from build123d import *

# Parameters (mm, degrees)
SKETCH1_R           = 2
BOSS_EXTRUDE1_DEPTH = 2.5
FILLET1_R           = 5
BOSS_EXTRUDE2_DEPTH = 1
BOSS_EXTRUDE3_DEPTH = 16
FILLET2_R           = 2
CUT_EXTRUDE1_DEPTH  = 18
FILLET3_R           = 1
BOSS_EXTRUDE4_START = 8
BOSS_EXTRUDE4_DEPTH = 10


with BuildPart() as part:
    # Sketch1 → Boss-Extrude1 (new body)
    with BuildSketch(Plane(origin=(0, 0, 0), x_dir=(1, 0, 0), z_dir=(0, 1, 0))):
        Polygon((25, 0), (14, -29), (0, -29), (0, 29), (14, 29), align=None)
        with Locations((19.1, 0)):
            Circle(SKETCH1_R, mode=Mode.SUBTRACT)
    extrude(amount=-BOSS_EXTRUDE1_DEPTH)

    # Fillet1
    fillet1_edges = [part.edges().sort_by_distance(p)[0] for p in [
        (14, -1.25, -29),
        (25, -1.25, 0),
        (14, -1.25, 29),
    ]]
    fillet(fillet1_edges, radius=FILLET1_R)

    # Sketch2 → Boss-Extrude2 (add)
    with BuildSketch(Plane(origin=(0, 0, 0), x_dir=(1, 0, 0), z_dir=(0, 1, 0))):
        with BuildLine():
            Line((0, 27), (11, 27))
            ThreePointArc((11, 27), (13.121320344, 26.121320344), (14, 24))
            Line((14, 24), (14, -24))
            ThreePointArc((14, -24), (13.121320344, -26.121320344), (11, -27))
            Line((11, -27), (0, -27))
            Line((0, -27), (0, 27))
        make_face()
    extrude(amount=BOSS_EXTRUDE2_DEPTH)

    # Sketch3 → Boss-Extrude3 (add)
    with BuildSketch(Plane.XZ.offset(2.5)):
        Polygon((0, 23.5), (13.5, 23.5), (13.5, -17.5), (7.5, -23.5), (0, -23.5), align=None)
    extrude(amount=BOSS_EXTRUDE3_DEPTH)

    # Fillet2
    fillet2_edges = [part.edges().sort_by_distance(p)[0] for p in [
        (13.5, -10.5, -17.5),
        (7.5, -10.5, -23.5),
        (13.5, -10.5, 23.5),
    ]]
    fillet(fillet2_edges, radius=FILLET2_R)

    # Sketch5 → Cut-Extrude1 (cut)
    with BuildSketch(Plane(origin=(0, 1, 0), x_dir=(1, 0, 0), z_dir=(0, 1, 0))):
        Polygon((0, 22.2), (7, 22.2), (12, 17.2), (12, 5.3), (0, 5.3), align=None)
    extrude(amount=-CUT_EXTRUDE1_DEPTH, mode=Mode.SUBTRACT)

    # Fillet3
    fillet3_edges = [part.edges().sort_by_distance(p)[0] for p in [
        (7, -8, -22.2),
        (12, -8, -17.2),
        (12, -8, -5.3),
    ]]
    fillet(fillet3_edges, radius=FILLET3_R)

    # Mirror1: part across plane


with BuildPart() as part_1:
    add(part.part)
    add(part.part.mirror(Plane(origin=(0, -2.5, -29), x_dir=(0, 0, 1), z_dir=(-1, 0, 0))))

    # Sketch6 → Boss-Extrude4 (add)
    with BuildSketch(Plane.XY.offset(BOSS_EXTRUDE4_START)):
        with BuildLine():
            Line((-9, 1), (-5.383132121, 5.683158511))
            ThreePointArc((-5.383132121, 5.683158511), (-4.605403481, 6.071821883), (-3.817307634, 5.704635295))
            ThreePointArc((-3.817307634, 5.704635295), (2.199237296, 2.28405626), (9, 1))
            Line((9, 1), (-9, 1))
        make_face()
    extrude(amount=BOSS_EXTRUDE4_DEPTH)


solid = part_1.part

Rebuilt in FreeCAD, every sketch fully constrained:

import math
import FreeCAD as App
import Part
import Sketcher
Q = App.Units.Quantity


def edges_at(feature, points):
    """Names of the edges that pass closest to the given points."""
    edges = feature.Shape.Edges
    near = lambda p: min(range(len(edges)), key=lambda i: edges[i].distToShape(Part.Vertex(*p))[0])
    return sorted({f"Edge{near(p) + 1}" for p in points})

doc = App.newDocument("Part")
body = doc.addObject("PartDesign::Body", "Body")

# Sketch on XZ plane
sketch1 = doc.addObject("Sketcher::SketchObject", "Sketch")
body.addObject(sketch1)
sketch1.AttachmentSupport = (doc.XZ_Plane, [""])
sketch1.MapMode = "FlatFace"
sketch1.addGeometry(Part.LineSegment(App.Vector(14, 29, 0), App.Vector(25, 0, 0)), False)
sketch1.addGeometry(Part.LineSegment(App.Vector(25, 0, 0), App.Vector(14, -29, 0)), False)
sketch1.addGeometry(Part.LineSegment(App.Vector(14, -29, 0), App.Vector(0, -29, 0)), False)
sketch1.addGeometry(Part.LineSegment(App.Vector(0, -29, 0), App.Vector(0, 29, 0)), False)
sketch1.addGeometry(Part.LineSegment(App.Vector(0, 29, 0), App.Vector(14, 29, 0)), False)
sketch1.addGeometry(Part.Circle(App.Vector(19.1, 0, 0), App.Vector(0, 0, 1), 2), False)
sketch1.addConstraint(Sketcher.Constraint("Coincident", 0, 2, 1, 1))
sketch1.addConstraint(Sketcher.Constraint("Coincident", 1, 2, 2, 1))
sketch1.addConstraint(Sketcher.Constraint("Coincident", 2, 2, 3, 1))
sketch1.addConstraint(Sketcher.Constraint("Coincident", 3, 2, 4, 1))
sketch1.addConstraint(Sketcher.Constraint("Coincident", 4, 2, 0, 1))
sketch1.addConstraint(Sketcher.Constraint("Horizontal", 2))
sketch1.addConstraint(Sketcher.Constraint("Vertical", 3))
sketch1.addConstraint(Sketcher.Constraint("Horizontal", 4))
sketch1.addConstraint(Sketcher.Constraint("Symmetric", 2, 2, 3, 2, -1, 1))
sketch1.addConstraint(Sketcher.Constraint("PointOnObject", 5, 3, -1))
sketch1.addConstraint(Sketcher.Constraint("PointOnObject", 0, 2, -1))
sketch1.addConstraint(Sketcher.Constraint("Vertical", 1, 2, 4, 2))
sketch1.addConstraint(Sketcher.Constraint("Diameter", 5, Q("4 mm")))
sketch1.addConstraint(Sketcher.Constraint("DistanceX", 2, 2, 2, 1, Q("14 mm")))
sketch1.addConstraint(Sketcher.Constraint("DistanceY", 3, 1, 3, 2, Q("58 mm")))
sketch1.addConstraint(Sketcher.Constraint("DistanceX", -1, 1, 0, 2, Q("25 mm")))
sketch1.addConstraint(Sketcher.Constraint("DistanceX", -1, 1, 5, 3, Q("19.1 mm")))
pad1 = doc.addObject("PartDesign::Pad", "Pad")
body.addObject(pad1)
pad1.Profile = sketch1
pad1.Length = 2.5
doc.recompute()

fillet = doc.addObject("PartDesign::Fillet", "Fillet")
body.addObject(fillet)
fillet.Base = (pad1, edges_at(pad1, [(14, -1.25, -29), (25, -1.25, 0), (14, -1.25, 29)]))
fillet.Radius = 5

# Sketch on XZ plane
sketch2 = doc.addObject("Sketcher::SketchObject", "Sketch001")
body.addObject(sketch2)
sketch2.AttachmentSupport = (doc.XZ_Plane, [""])
sketch2.MapMode = "FlatFace"
sketch2.addGeometry(Part.LineSegment(App.Vector(11, -27, 0), App.Vector(0, -27, 0)), False)
sketch2.addGeometry(Part.LineSegment(App.Vector(0, -27, 0), App.Vector(0, 27, 0)), False)
sketch2.addGeometry(Part.LineSegment(App.Vector(0, 27, 0), App.Vector(11, 27, 0)), False)
sketch2.addGeometry(Part.ArcOfCircle(Part.Circle(App.Vector(11, 24, 0), App.Vector(0, 0, 1), 3), math.radians(0), math.radians(90)), False)
sketch2.addGeometry(Part.LineSegment(App.Vector(14, 24, 0), App.Vector(14, -24, 0)), False)
sketch2.addGeometry(Part.ArcOfCircle(Part.Circle(App.Vector(11, -24, 0), App.Vector(0, 0, 1), 3), math.radians(-90), math.radians(0)), False)
sketch2.addConstraint(Sketcher.Constraint("Coincident", 0, 2, 1, 1))
sketch2.addConstraint(Sketcher.Constraint("Coincident", 1, 2, 2, 1))
sketch2.addConstraint(Sketcher.Constraint("Tangent", 2, 2, 3, 2))
sketch2.addConstraint(Sketcher.Constraint("Tangent", 3, 1, 4, 1))
sketch2.addConstraint(Sketcher.Constraint("Tangent", 4, 2, 5, 2))
sketch2.addConstraint(Sketcher.Constraint("Tangent", 5, 1, 0, 1))
sketch2.addConstraint(Sketcher.Constraint("Horizontal", 0))
sketch2.addConstraint(Sketcher.Constraint("Vertical", 1))
sketch2.addConstraint(Sketcher.Constraint("Horizontal", 2))
sketch2.addConstraint(Sketcher.Constraint("Vertical", 4))
sketch2.addConstraint(Sketcher.Constraint("Equal", 3, 5))
sketch2.addConstraint(Sketcher.Constraint("Symmetric", 0, 2, 1, 2, -1, 1))
sketch2.addConstraint(Sketcher.Constraint("Radius", 3, Q("3 mm")))
sketch2.addConstraint(Sketcher.Constraint("DistanceX", 0, 2, 0, 1, Q("11 mm")))
sketch2.addConstraint(Sketcher.Constraint("DistanceY", 1, 1, 1, 2, Q("54 mm")))
pad2 = doc.addObject("PartDesign::Pad", "Pad001")
body.addObject(pad2)
pad2.Profile = sketch2
pad2.Length = 1
pad2.Reversed = True

# Sketch on XZ plane
sketch3 = doc.addObject("Sketcher::SketchObject", "Sketch002")
body.addObject(sketch3)
sketch3.AttachmentSupport = (doc.XZ_Plane, [""])
sketch3.MapMode = "FlatFace"
sketch3.AttachmentOffset = App.Placement(App.Vector(0, 0, 2.5), App.Rotation())
sketch3.addGeometry(Part.LineSegment(App.Vector(14, 24, 0), App.Vector(0, 24, 0)), False)
sketch3.addGeometry(Part.LineSegment(App.Vector(0, 24, 0), App.Vector(0, -24, 0)), False)
sketch3.addGeometry(Part.LineSegment(App.Vector(0, -24, 0), App.Vector(8, -24, 0)), False)
sketch3.addGeometry(Part.LineSegment(App.Vector(8, -24, 0), App.Vector(14, -18, 0)), False)
sketch3.addGeometry(Part.LineSegment(App.Vector(14, -18, 0), App.Vector(14, 24, 0)), False)
sketch3.addConstraint(Sketcher.Constraint("Coincident", 0, 2, 1, 1))
sketch3.addConstraint(Sketcher.Constraint("Coincident", 1, 2, 2, 1))
sketch3.addConstraint(Sketcher.Constraint("Coincident", 2, 2, 3, 1))
sketch3.addConstraint(Sketcher.Constraint("Coincident", 3, 2, 4, 1))
sketch3.addConstraint(Sketcher.Constraint("Coincident", 4, 2, 0, 1))
sketch3.addConstraint(Sketcher.Constraint("Horizontal", 0))
sketch3.addConstraint(Sketcher.Constraint("Vertical", 1))
sketch3.addConstraint(Sketcher.Constraint("Horizontal", 2))
sketch3.addConstraint(Sketcher.Constraint("Vertical", 4))
sketch3.addConstraint(Sketcher.Constraint("Symmetric", 0, 2, 1, 2, -1, 1))
sketch3.addConstraint(Sketcher.Constraint("DistanceY", 1, 2, 1, 1, Q("47 mm")))
sketch3.addConstraint(Sketcher.Constraint("DistanceY", 4, 1, 4, 2, Q("41 mm")))
sketch3.addConstraint(Sketcher.Constraint("Angle", 3, Q("45 deg")))
sketch3.addConstraint(Sketcher.Constraint("DistanceX", 0, 2, 0, 1, Q("13.5 mm")))
pad3 = doc.addObject("PartDesign::Pad", "Pad002")
body.addObject(pad3)
pad3.Profile = sketch3
pad3.Length = 16
doc.recompute()

fillet2 = doc.addObject("PartDesign::Fillet", "Fillet001")
body.addObject(fillet2)
fillet2.Base = (pad3, edges_at(pad3, [(13.5, -10.5, -17.5), (7.5, -10.5, -23.5), (13.5, -10.5, 23.5)]))
fillet2.Radius = 2

# Sketch on XZ plane
sketch4 = doc.addObject("Sketcher::SketchObject", "Sketch003")
body.addObject(sketch4)
sketch4.AttachmentSupport = (doc.XZ_Plane, [""])
sketch4.MapMode = "FlatFace"
sketch4.AttachmentOffset = App.Placement(App.Vector(0, 0, -1), App.Rotation())
sketch4.addGeometry(Part.LineSegment(App.Vector(7, -22, 0), App.Vector(0, -22, 0)), False)
sketch4.addGeometry(Part.LineSegment(App.Vector(0, -22, 0), App.Vector(0, -5, 0)), False)
sketch4.addGeometry(Part.LineSegment(App.Vector(0, -5, 0), App.Vector(12, -5, 0)), False)
sketch4.addGeometry(Part.LineSegment(App.Vector(12, -5, 0), App.Vector(12, -17, 0)), False)
sketch4.addGeometry(Part.LineSegment(App.Vector(12, -17, 0), App.Vector(7, -22, 0)), False)
sketch4.addConstraint(Sketcher.Constraint("Coincident", 0, 2, 1, 1))
sketch4.addConstraint(Sketcher.Constraint("Coincident", 1, 2, 2, 1))
sketch4.addConstraint(Sketcher.Constraint("Coincident", 2, 2, 3, 1))
sketch4.addConstraint(Sketcher.Constraint("Coincident", 3, 2, 4, 1))
sketch4.addConstraint(Sketcher.Constraint("Coincident", 4, 2, 0, 1))
sketch4.addConstraint(Sketcher.Constraint("Horizontal", 0))
sketch4.addConstraint(Sketcher.Constraint("Vertical", 1))
sketch4.addConstraint(Sketcher.Constraint("Horizontal", 2))
sketch4.addConstraint(Sketcher.Constraint("Vertical", 3))
sketch4.addConstraint(Sketcher.Constraint("PointOnObject", 0, 2, -2))
sketch4.addConstraint(Sketcher.Constraint("DistanceX", 0, 2, 0, 1, Q("7 mm")))
sketch4.addConstraint(Sketcher.Constraint("DistanceX", 2, 1, 2, 2, Q("12 mm")))
sketch4.addConstraint(Sketcher.Constraint("Angle", 4, Q("-135 deg")))
sketch4.addConstraint(Sketcher.Constraint("DistanceY", 1, 1, 1, 2, Q("16.9 mm")))
sketch4.addConstraint(Sketcher.Constraint("DistanceY", 0, 2, -1, 1, Q("22.2 mm")))
pocket1 = doc.addObject("PartDesign::Pocket", "Pocket")
body.addObject(pocket1)
pocket1.Profile = sketch4
pocket1.Length = 18
pocket1.Reversed = True
doc.recompute()

fillet3 = doc.addObject("PartDesign::Fillet", "Fillet002")
body.addObject(fillet3)
fillet3.Base = (pocket1, edges_at(pocket1, [(7, -8, -22.2), (12, -8, -17.2), (12, -8, -5.3)]))
fillet3.Radius = 1
body2 = doc.addObject("PartDesign::Body", "Body001")
doc.recompute()

body2.BaseFeature = body
doc.recompute()

mirroring = doc.addObject("Part::Mirroring", "Mirroring")
mirroring.Source = body
mirroring.Base = App.Vector(0, -2.5, -29)
mirroring.Normal = App.Vector(-1, 0, 0)
body3 = doc.addObject("PartDesign::Body", "Body002")
body3.BaseFeature = mirroring
boolean = doc.addObject("PartDesign::Boolean", "Boolean")
body2.addObject(boolean)
boolean.Type = "Fuse"
boolean.addObjects([body3])
doc.recompute()

# Sketch on XY plane
sketch5 = doc.addObject("Sketcher::SketchObject", "Sketch004")
body2.addObject(sketch5)
sketch5.AttachmentSupport = (doc.getObject("XY_Plane001"), [""])
sketch5.MapMode = "FlatFace"
sketch5.AttachmentOffset = App.Placement(App.Vector(0, 0, 8), App.Rotation())
sketch5.addGeometry(Part.LineSegment(App.Vector(-5.4, 5.7, 0), App.Vector(-9, 1, 0)), False)
sketch5.addGeometry(Part.LineSegment(App.Vector(-9, 1, 0), App.Vector(9, 1, 0)), False)
sketch5.addGeometry(Part.ArcOfCircle(Part.Circle(App.Vector(9.5, 22, 0), App.Vector(0, 0, 1), 21), math.radians(-129), math.radians(-91)), False)
sketch5.addGeometry(Part.ArcOfCircle(Part.Circle(App.Vector(-4.6, 5.1, 0), App.Vector(0, 0, 1), 1), math.radians(39), math.radians(142)), False)
sketch5.addConstraint(Sketcher.Constraint("Coincident", 0, 2, 1, 1))
sketch5.addConstraint(Sketcher.Constraint("Coincident", 1, 2, 2, 2))
sketch5.addConstraint(Sketcher.Constraint("Coincident", 2, 1, 3, 1))
sketch5.addConstraint(Sketcher.Constraint("Tangent", 3, 2, 0, 1))
sketch5.addConstraint(Sketcher.Constraint("Horizontal", 1))
sketch5.addConstraint(Sketcher.Constraint("Radius", 3, Q("1 mm")))
sketch5.addConstraint(Sketcher.Constraint("DistanceX", 1, 1, 1, 2, Q("18 mm")))
sketch5.addConstraint(Sketcher.Constraint("DistanceX", 0, 2, -1, 1, Q("9 mm")))
sketch5.addConstraint(Sketcher.Constraint("DistanceY", -1, 1, 0, 2, Q("1 mm")))
sketch5.addConstraint(Sketcher.Constraint("Radius", 2, Q("21.046243 mm")))
sketch5.addConstraint(Sketcher.Constraint("Distance", 0, Q("5.917238 mm")))
sketch5.addConstraint(Sketcher.Constraint("DistanceX", 3, 3, -1, 1, Q("4.591689 mm")))
sketch5.addConstraint(Sketcher.Constraint("DistanceY", 3, 3, 2, 3, Q("16.969489 mm")))
pad4 = doc.addObject("PartDesign::Pad", "Pad003")
body2.addObject(pad4)
pad4.Profile = sketch5
pad4.Length = 10
mirroring.Visibility = False

doc.recompute()
